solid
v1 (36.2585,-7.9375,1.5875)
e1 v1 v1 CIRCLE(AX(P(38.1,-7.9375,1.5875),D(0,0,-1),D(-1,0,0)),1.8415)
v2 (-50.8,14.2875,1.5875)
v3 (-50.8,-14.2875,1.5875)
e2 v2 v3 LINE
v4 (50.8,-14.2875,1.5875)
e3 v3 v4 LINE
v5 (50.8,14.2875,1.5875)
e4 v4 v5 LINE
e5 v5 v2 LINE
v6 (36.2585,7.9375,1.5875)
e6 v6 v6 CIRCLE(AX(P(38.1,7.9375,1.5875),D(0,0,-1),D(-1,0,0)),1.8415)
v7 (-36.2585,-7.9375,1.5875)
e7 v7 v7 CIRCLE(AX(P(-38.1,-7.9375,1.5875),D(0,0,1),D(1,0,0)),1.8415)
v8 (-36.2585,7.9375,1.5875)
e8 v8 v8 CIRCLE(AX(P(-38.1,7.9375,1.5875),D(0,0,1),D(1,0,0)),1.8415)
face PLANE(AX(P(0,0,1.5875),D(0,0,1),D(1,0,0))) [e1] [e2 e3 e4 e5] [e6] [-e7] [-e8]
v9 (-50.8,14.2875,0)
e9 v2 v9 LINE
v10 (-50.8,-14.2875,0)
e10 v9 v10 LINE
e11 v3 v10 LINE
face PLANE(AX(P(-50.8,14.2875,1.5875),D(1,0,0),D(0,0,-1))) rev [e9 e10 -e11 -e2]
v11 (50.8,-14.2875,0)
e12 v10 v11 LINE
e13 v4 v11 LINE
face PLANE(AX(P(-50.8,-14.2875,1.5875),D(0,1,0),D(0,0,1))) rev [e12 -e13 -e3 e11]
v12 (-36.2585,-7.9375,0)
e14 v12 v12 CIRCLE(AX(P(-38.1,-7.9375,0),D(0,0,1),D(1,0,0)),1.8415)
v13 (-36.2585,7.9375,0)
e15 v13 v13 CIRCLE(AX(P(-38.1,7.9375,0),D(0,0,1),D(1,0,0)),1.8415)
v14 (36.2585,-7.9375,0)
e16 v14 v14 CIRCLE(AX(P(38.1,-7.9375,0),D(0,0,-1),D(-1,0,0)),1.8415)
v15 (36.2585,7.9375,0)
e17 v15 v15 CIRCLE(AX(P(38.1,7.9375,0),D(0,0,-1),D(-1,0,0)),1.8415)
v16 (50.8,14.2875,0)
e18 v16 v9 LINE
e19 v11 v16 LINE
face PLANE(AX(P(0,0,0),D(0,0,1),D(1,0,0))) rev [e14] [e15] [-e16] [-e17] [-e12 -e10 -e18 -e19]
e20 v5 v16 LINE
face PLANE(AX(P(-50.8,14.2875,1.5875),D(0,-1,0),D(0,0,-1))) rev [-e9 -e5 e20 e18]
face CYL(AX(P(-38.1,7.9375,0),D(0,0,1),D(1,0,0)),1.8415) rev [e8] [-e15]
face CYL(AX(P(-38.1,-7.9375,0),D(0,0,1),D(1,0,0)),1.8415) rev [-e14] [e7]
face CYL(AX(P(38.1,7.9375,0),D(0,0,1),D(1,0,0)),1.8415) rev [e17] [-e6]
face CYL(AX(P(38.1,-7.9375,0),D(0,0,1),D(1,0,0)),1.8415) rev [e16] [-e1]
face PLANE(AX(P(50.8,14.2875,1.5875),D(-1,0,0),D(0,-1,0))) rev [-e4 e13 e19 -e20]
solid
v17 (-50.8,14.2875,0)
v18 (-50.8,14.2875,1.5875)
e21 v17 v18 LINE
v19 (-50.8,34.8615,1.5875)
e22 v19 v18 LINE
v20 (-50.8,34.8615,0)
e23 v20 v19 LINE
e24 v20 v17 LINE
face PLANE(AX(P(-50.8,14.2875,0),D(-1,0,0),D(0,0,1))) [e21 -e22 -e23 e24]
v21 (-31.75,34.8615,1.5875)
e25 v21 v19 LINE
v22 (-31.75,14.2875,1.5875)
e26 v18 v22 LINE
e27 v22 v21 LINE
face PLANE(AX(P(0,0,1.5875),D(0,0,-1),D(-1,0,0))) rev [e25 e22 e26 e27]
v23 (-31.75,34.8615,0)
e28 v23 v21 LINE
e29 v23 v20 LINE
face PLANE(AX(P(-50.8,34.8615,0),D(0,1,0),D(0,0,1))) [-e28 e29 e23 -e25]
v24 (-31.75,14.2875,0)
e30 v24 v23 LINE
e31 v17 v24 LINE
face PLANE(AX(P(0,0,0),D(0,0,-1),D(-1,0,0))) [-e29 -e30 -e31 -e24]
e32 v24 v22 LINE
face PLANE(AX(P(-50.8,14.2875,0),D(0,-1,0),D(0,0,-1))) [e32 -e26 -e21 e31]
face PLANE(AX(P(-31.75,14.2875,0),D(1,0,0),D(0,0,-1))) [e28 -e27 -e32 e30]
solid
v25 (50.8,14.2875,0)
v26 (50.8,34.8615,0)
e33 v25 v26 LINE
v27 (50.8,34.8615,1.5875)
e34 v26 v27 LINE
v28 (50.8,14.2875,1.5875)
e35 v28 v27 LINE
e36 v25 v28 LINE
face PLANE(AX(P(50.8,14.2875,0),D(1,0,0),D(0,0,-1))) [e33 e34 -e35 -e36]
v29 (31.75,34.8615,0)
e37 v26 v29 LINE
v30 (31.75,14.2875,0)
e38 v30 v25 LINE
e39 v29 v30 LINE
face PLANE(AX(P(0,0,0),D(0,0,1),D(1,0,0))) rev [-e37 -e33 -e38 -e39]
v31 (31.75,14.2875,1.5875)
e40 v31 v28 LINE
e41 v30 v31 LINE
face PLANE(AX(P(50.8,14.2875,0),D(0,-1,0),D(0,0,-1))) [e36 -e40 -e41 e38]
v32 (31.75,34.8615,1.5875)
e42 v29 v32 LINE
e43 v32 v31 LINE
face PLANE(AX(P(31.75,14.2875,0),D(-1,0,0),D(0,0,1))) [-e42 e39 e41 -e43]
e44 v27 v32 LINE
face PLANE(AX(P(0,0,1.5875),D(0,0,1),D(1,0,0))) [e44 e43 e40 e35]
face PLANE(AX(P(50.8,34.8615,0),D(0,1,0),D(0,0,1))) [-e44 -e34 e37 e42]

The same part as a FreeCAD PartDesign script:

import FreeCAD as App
import Part
import Sketcher
Q = App.Units.Quantity

doc = App.newDocument("Part")
body = doc.addObject("PartDesign::Body", "Body")

# Sketch on XY plane
sketch1 = doc.addObject("Sketcher::SketchObject", "Sketch")
body.addObject(sketch1)
sketch1.AttachmentSupport = (doc.XY_Plane, [""])
sketch1.MapMode = "FlatFace"
sketch1.addGeometry(Part.LineSegment(App.Vector(-51, 14, 0), App.Vector(-51, -14, 0)), False)
sketch1.addGeometry(Part.LineSegment(App.Vector(-51, -14, 0), App.Vector(51, -14, 0)), False)
sketch1.addGeometry(Part.LineSegment(App.Vector(51, -14, 0), App.Vector(51, 14, 0)), False)
sketch1.addGeometry(Part.LineSegment(App.Vector(51, 14, 0), App.Vector(-51, 14, 0)), False)
sketch1.addConstraint(Sketcher.Constraint("Coincident", 0, 2, 1, 1))
sketch1.addConstraint(Sketcher.Constraint("Coincident", 1, 2, 2, 1))
sketch1.addConstraint(Sketcher.Constraint("Coincident", 2, 2, 3, 1))
sketch1.addConstraint(Sketcher.Constraint("Coincident", 3, 2, 0, 1))
sketch1.addConstraint(Sketcher.Constraint("Vertical", 0))
sketch1.addConstraint(Sketcher.Constraint("Horizontal", 1))
sketch1.addConstraint(Sketcher.Constraint("Vertical", 2))
sketch1.addConstraint(Sketcher.Constraint("Horizontal", 3))
sketch1.addConstraint(Sketcher.Constraint("Symmetric", 0, 2, 2, 2, -1, 1))
sketch1.addConstraint(Sketcher.Constraint("DistanceX", 1, 1, 1, 2, Q("4 in")))
sketch1.addConstraint(Sketcher.Constraint("DistanceY", 0, 2, 0, 1, Q("1.125 in")))
pad1 = doc.addObject("PartDesign::Pad", "Pad")
body.addObject(pad1)
pad1.Profile = sketch1
pad1.Length = Q("0.0625 in")

# Sketch on XY plane
sketch2 = doc.addObject("Sketcher::SketchObject", "Sketch001")
body.addObject(sketch2)
sketch2.AttachmentSupport = (doc.XY_Plane, [""])
sketch2.MapMode = "FlatFace"
sketch2.AttachmentOffset = App.Placement(App.Vector(0, 0, 0.0625 * 25.4), App.Rotation())
sketch2.addGeometry(Part.Circle(App.Vector(-38.1, 7.9, 0), App.Vector(0, 0, 1), 1.8), False)
sketch2.addGeometry(Part.Circle(App.Vector(-38.1, -7.9, 0), App.Vector(0, 0, 1), 1.8), False)
sketch2.addConstraint(Sketcher.Constraint("Equal", 0, 1))
sketch2.addConstraint(Sketcher.Constraint("Symmetric", 0, 3, 1, 3, -1))
sketch2.addConstraint(Sketcher.Constraint("Diameter", 0, Q("0.145 in")))
sketch2.addConstraint(Sketcher.Constraint("DistanceX", 0, 3, -1, 1, Q("1.5 in")))
sketch2.addConstraint(Sketcher.Constraint("DistanceY", -1, 1, 0, 3, Q("0.3125 in")))
pocket1 = doc.addObject("PartDesign::Pocket", "Pocket")
body.addObject(pocket1)
pocket1.Profile = sketch2
pocket1.Type = "ThroughAll"
doc.recompute()

mirrored = doc.addObject("PartDesign::Mirrored", "Mirrored")
body.addObject(mirrored)
mirrored.Originals = [pocket1]
mirrored.MirrorPlane = (doc.YZ_Plane, [""])
body.Tip = mirrored
body2 = doc.addObject("PartDesign::Body", "Body001")

# Sketch on XY plane
sketch3 = doc.addObject("Sketcher::SketchObject", "Sketch002")
body2.addObject(sketch3)
sketch3.AttachmentSupport = (doc.getObject("XY_Plane001"), [""])
sketch3.MapMode = "FlatFace"
sketch3.AttachmentOffset = App.Placement(App.Vector(0, 0, 0.0625 * 25.4), App.Rotation())
sketch3.addGeometry(Part.LineSegment(App.Vector(-51, 35, 0), App.Vector(-51, 14, 0)), False)
sketch3.addGeometry(Part.LineSegment(App.Vector(-51, 14, 0), App.Vector(-32, 14, 0)), False)
sketch3.addGeometry(Part.LineSegment(App.Vector(-32, 14, 0), App.Vector(-32, 35, 0)), False)
sketch3.addGeometry(Part.LineSegment(App.Vector(-32, 35, 0), App.Vector(-51, 35, 0)), False)
sketch3.addConstraint(Sketcher.Constraint("Coincident", 0, 2, 1, 1))
sketch3.addConstraint(Sketcher.Constraint("Coincident", 1, 2, 2, 1))
sketch3.addConstraint(Sketcher.Constraint("Coincident", 2, 2, 3, 1))
sketch3.addConstraint(Sketcher.Constraint("Coincident", 3, 2, 0, 1))
sketch3.addConstraint(Sketcher.Constraint("Vertical", 0))
sketch3.addConstraint(Sketcher.Constraint("Horizontal", 1))
sketch3.addConstraint(Sketcher.Constraint("Vertical", 2))
sketch3.addConstraint(Sketcher.Constraint("Horizontal", 3))
sketch3.addConstraint(Sketcher.Constraint("DistanceX", 0, 2, -1, 1, Q("2 in")))
sketch3.addConstraint(Sketcher.Constraint("DistanceX", 1, 1, 1, 2, Q("0.75 in")))
sketch3.addConstraint(Sketcher.Constraint("DistanceY", 0, 2, 0, 1, Q("0.81 in")))
sketch3.addConstraint(Sketcher.Constraint("DistanceY", -1, 1, 0, 2, Q("0.5625 in")))
pad2 = doc.addObject("PartDesign::Pad", "Pad001")
body2.addObject(pad2)
pad2.Profile = sketch3
pad2.Length = Q("0.0625 in")
pad2.Reversed = True
body3 = doc.addObject("PartDesign::Body", "Body002")

# Sketch on XY plane
sketch4 = doc.addObject("Sketcher::SketchObject", "Sketch003")
body3.addObject(sketch4)
sketch4.AttachmentSupport = (doc.getObject("XY_Plane002"), [""])
sketch4.MapMode = "FlatFace"
sketch4.AttachmentOffset = App.Placement(App.Vector(0, 0, 0.0625 * 25.4), App.Rotation())
sketch4.addGeometry(Part.LineSegment(App.Vector(32, 35, 0), App.Vector(32, 14, 0)), False)
sketch4.addGeometry(Part.LineSegment(App.Vector(32, 14, 0), App.Vector(51, 14, 0)), False)
sketch4.addGeometry(Part.LineSegment(App.Vector(51, 14, 0), App.Vector(51, 35, 0)), False)
sketch4.addGeometry(Part.LineSegment(App.Vector(51, 35, 0), App.Vector(32, 35, 0)), False)
sketch4.addConstraint(Sketcher.Constraint("Coincident", 0, 2, 1, 1))
sketch4.addConstraint(Sketcher.Constraint("Coincident", 1, 2, 2, 1))
sketch4.addConstraint(Sketcher.Constraint("Coincident", 2, 2, 3, 1))
sketch4.addConstraint(Sketcher.Constraint("Coincident", 3, 2, 0, 1))
sketch4.addConstraint(Sketcher.Constraint("Vertical", 0))
sketch4.addConstraint(Sketcher.Constraint("Horizontal", 1))
sketch4.addConstraint(Sketcher.Constraint("Vertical", 2))
sketch4.addConstraint(Sketcher.Constraint("Horizontal", 3))
sketch4.addConstraint(Sketcher.Constraint("DistanceX", -1, 1, 1, 2, Q("2 in")))
sketch4.addConstraint(Sketcher.Constraint("DistanceX", 1, 1, 1, 2, Q("0.75 in")))
sketch4.addConstraint(Sketcher.Constraint("DistanceY", 0, 2, 0, 1, Q("0.81 in")))
sketch4.addConstraint(Sketcher.Constraint("DistanceY", -1, 1, 0, 2, Q("0.5625 in")))
pad3 = doc.addObject("PartDesign::Pad", "Pad002")
body3.addObject(pad3)
pad3.Profile = sketch4
pad3.Length = Q("0.0625 in")
pad3.Reversed = True

doc.recompute()
